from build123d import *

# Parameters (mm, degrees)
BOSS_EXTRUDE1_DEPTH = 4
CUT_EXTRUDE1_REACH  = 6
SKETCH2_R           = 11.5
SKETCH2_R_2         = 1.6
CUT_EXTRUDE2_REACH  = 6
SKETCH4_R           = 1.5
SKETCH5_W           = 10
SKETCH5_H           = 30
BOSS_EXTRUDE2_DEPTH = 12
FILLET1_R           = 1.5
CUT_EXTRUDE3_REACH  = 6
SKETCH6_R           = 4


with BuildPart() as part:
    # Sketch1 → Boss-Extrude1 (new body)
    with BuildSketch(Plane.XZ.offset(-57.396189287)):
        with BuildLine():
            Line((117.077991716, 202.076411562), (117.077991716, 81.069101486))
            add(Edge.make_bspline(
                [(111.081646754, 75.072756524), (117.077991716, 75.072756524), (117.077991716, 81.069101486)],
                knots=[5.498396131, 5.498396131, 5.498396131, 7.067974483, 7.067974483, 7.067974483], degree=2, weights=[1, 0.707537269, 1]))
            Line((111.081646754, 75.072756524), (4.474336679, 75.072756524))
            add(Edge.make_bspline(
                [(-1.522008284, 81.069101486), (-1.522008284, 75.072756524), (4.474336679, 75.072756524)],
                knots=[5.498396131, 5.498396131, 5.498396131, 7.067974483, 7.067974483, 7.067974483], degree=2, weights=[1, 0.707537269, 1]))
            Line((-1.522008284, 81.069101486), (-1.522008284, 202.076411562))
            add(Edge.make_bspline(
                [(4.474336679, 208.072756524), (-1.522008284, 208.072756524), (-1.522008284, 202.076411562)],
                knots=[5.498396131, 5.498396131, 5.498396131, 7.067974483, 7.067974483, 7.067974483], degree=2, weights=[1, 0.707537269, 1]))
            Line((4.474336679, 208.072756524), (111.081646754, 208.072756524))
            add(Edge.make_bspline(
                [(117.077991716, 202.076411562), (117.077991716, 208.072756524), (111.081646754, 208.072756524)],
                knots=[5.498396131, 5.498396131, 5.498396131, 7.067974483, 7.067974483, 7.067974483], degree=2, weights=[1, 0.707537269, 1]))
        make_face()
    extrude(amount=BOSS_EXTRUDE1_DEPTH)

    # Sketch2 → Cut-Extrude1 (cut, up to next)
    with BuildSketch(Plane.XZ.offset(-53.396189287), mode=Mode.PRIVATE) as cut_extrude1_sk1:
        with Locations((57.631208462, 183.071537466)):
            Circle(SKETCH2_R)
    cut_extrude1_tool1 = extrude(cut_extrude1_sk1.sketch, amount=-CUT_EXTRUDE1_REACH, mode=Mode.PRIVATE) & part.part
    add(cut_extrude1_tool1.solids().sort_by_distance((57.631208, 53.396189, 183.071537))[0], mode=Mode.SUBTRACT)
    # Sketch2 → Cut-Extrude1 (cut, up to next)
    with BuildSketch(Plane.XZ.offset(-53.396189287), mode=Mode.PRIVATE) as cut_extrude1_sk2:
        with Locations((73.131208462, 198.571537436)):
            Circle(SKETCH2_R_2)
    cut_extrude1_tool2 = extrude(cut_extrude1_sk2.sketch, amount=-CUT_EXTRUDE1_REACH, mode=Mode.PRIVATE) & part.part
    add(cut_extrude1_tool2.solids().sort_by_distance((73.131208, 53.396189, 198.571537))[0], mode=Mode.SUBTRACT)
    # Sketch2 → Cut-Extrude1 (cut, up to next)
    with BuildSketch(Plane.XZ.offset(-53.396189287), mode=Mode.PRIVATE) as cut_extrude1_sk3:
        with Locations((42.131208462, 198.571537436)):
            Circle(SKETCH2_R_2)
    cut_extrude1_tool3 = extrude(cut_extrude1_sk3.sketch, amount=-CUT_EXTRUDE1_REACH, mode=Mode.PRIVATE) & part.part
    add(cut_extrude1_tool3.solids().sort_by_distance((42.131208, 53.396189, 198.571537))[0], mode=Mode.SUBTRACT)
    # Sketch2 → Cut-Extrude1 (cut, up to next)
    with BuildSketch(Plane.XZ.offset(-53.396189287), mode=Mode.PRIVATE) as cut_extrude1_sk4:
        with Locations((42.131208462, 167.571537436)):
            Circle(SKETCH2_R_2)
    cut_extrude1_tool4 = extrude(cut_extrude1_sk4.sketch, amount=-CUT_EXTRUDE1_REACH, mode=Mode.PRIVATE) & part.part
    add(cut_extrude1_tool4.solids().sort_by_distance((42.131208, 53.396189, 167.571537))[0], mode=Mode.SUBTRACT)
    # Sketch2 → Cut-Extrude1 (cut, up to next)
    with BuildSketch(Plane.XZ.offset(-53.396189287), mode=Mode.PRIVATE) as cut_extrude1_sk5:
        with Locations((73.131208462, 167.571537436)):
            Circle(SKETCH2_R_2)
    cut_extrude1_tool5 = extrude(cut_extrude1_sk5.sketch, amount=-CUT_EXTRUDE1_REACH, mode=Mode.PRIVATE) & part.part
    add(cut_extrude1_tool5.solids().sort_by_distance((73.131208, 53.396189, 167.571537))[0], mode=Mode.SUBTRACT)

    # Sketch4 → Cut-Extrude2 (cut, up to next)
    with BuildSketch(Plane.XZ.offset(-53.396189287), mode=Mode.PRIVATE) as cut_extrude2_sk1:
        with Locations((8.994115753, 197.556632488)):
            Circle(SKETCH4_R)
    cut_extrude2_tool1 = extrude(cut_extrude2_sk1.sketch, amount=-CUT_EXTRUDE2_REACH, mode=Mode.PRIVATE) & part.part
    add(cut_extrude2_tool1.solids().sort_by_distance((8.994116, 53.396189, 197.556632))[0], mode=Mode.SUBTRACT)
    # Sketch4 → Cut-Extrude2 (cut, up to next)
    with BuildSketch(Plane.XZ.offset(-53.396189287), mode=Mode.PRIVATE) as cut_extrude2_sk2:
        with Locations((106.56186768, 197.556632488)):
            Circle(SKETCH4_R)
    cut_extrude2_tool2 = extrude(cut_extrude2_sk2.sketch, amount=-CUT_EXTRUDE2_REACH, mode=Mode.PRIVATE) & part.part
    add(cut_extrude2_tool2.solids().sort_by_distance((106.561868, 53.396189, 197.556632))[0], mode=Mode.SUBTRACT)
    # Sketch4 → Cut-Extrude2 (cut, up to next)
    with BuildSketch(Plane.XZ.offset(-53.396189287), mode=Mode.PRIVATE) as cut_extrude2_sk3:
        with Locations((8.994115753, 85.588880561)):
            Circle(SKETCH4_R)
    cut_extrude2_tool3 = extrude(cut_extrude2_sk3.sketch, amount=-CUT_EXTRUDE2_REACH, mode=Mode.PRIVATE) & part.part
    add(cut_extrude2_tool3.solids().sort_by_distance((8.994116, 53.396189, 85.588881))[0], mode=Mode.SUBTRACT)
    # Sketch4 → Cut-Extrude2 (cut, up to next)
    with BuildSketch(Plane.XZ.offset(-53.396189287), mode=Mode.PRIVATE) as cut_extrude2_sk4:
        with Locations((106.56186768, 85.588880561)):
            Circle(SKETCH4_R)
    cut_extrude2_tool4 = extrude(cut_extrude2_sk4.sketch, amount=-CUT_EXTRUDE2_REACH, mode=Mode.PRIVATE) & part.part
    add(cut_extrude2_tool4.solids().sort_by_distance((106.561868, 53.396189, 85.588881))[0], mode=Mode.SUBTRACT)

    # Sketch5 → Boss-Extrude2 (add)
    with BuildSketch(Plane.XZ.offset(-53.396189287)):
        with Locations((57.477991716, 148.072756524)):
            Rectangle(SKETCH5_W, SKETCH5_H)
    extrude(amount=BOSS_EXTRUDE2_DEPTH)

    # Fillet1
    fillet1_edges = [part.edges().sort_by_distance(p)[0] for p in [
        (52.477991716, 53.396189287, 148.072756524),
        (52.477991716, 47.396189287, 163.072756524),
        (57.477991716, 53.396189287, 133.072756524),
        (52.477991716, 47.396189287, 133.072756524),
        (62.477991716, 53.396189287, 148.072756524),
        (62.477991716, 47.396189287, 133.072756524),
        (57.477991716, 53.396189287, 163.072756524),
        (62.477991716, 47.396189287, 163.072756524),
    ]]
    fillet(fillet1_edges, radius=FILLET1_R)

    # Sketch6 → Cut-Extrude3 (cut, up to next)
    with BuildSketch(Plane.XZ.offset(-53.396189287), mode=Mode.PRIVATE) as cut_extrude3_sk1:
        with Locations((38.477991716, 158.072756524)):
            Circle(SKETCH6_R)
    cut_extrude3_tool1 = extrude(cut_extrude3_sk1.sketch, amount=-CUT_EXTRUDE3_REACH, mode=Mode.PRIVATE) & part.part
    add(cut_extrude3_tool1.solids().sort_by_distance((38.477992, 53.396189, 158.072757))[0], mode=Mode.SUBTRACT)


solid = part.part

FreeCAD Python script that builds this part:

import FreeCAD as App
import Part
import Sketcher
from FreeCAD import Vector
Q = App.Units.Quantity


def edges_at(feature, points):
    """Names of the edges that pass closest to the given points."""
    edges = feature.Shape.Edges
    near = lambda p: min(range(len(edges)), key=lambda i: edges[i].distToShape(Part.Vertex(*p))[0])
    return sorted({f"Edge{near(p) + 1}" for p in points})

doc = App.newDocument("Part")
params = doc.addObject("Spreadsheet::Sheet", "Params")
for row, (alias, value) in enumerate([
    ("pad1_length", "4 mm"),
    ("sketch2_diameter", "23 mm"),
    ("sketch3_diameter", "3.2 mm"),
    ("sketch4_diameter", "3.2 mm"),
    ("sketch5_diameter", "3.2 mm"),
    ("sketch6_diameter", "3.2 mm"),
    ("sketch7_diameter", "3 mm"),
    ("sketch8_diameter", "3 mm"),
    ("sketch9_diameter", "3 mm"),
    ("sketch10_diameter", "3 mm"),
    ("sketch11_width", "10 mm"),
    ("sketch11_height", "30 mm"),
    ("pad2_length", "12 mm"),
    ("fillet_radius", "1.5 mm"),
    ("sketch12_diameter", "8 mm"),
], start=1):
    params.set(f"A{row}", alias)
    params.set(f"B{row}", "=" + value)
    params.setAlias(f"B{row}", alias)

body = doc.addObject("PartDesign::Body", "Body")

# Sketch on XZ plane
sketch1 = body.newObject("Sketcher::SketchObject", "Sketch")
sketch1.AttachmentSupport = (doc.getObject("XZ_Plane"), [""])
sketch1.MapMode = "FlatFace"
sketch1.AttachmentOffset = App.Placement(Vector(0, 0, -57.396189), App.Rotation())
sketch1.addGeometry([
    Part.LineSegment(Vector(117.077992, 81.069101, 0), Vector(117.077992, 202.076412, 0)),  # 0
    Part.BSplineCurve([Vector(117.077992, 202.076412, 0), Vector(117.077992, 208.072757, 0), Vector(111.081647, 208.072757, 0)], [3, 3], [5.498396131, 7.067974483], False, 2, [1, 0.707537269, 1], False),  # 1
    Part.LineSegment(Vector(111.081647, 208.072757, 0), Vector(4.474337, 208.072757, 0)),  # 2
    Part.BSplineCurve([Vector(4.474337, 208.072757, 0), Vector(-1.522008, 208.072757, 0), Vector(-1.522008, 202.076412, 0)], [3, 3], [5.498396131, 7.067974483], False, 2, [1, 0.707537269, 1], False),  # 3
    Part.LineSegment(Vector(-1.522008, 202.076412, 0), Vector(-1.522008, 81.069101, 0)),  # 4
    Part.BSplineCurve([Vector(-1.522008, 81.069101, 0), Vector(-1.522008, 75.072757, 0), Vector(4.474337, 75.072757, 0)], [3, 3], [5.498396131, 7.067974483], False, 2, [1, 0.707537269, 1], False),  # 5
    Part.LineSegment(Vector(4.474337, 75.072757, 0), Vector(111.081647, 75.072757, 0)),  # 6
    Part.BSplineCurve([Vector(111.081647, 75.072757, 0), Vector(117.077992, 75.072757, 0), Vector(117.077992, 81.069101, 0)], [3, 3], [5.498396131, 7.067974483], False, 2, [1, 0.707537269, 1], False),  # 7
], False)
sketch1.addConstraint([
    Sketcher.Constraint("Block", 1),
    Sketcher.Constraint("Block", 3),
    Sketcher.Constraint("Block", 5),
    Sketcher.Constraint("Block", 7),
    Sketcher.Constraint("Coincident", 0, 2, 1, 1),
    Sketcher.Constraint("Coincident", 1, 2, 2, 1),
    Sketcher.Constraint("Coincident", 2, 2, 3, 1),
    Sketcher.Constraint("Coincident", 3, 2, 4, 1),
    Sketcher.Constraint("Coincident", 4, 2, 5, 1),
    Sketcher.Constraint("Coincident", 5, 2, 6, 1),
    Sketcher.Constraint("Coincident", 6, 2, 7, 1),
    Sketcher.Constraint("Coincident", 7, 2, 0, 1),
])
pad1 = body.newObject("PartDesign::Pad", "Pad")
pad1.Profile = sketch1
pad1.setExpression("Length", "Params.pad1_length")

# Sketch on XZ plane
sketch2 = body.newObject("Sketcher::SketchObject", "Sketch001")
sketch2.AttachmentSupport = (doc.getObject("XZ_Plane"), [""])
sketch2.MapMode = "FlatFace"
sketch2.AttachmentOffset = App.Placement(Vector(0, 0, -53.396189), App.Rotation())
sketch2.addGeometry(Part.Circle(Vector(58, 183, 0), Vector(0, 0, 1), 12), False)
sketch2.addConstraint([
    Sketcher.Constraint("Diameter", 0, Q("23 mm")),
    Sketcher.Constraint("DistanceX", -1, 1, 0, 3, Q("57.631208 mm")),
    Sketcher.Constraint("DistanceY", -1, 1, 0, 3, Q("183.071537 mm")),
])
sketch2.setExpression("Constraints[0]", "Params.sketch2_diameter")
pocket1 = body.newObject("PartDesign::Pocket", "Pocket")
pocket1.Profile = sketch2
pocket1.Type = "UpToFirst"

# Sketch on XZ plane
sketch3 = body.newObject("Sketcher::SketchObject", "Sketch002")
sketch3.AttachmentSupport = (doc.getObject("XZ_Plane"), [""])
sketch3.MapMode = "FlatFace"
sketch3.AttachmentOffset = App.Placement(Vector(0, 0, -53.396189), App.Rotation())
sketch3.addGeometry(Part.Circle(Vector(73.1, 198.6, 0), Vector(0, 0, 1), 1.6), False)
sketch3.addConstraint([
    Sketcher.Constraint("Diameter", 0, Q("3.2 mm")),
    Sketcher.Constraint("DistanceX", -1, 1, 0, 3, Q("73.131208 mm")),
    Sketcher.Constraint("DistanceY", -1, 1, 0, 3, Q("198.571537 mm")),
])
sketch3.setExpression("Constraints[0]", "Params.sketch3_diameter")
pocket2 = body.newObject("PartDesign::Pocket", "Pocket001")
pocket2.Profile = sketch3
pocket2.Type = "UpToFirst"

# Sketch on XZ plane
sketch4 = body.newObject("Sketcher::SketchObject", "Sketch003")
sketch4.AttachmentSupport = (doc.getObject("XZ_Plane"), [""])
sketch4.MapMode = "FlatFace"
sketch4.AttachmentOffset = App.Placement(Vector(0, 0, -53.396189), App.Rotation())
sketch4.addGeometry(Part.Circle(Vector(42.1, 198.6, 0), Vector(0, 0, 1), 1.6), False)
sketch4.addConstraint([
    Sketcher.Constraint("Diameter", 0, Q("3.2 mm")),
    Sketcher.Constraint("DistanceX", -1, 1, 0, 3, Q("42.131208 mm")),
    Sketcher.Constraint("DistanceY", -1, 1, 0, 3, Q("198.571537 mm")),
])
sketch4.setExpression("Constraints[0]", "Params.sketch4_diameter")
pocket3 = body.newObject("PartDesign::Pocket", "Pocket002")
pocket3.Profile = sketch4
pocket3.Type = "UpToFirst"

# Sketch on XZ plane
sketch5 = body.newObject("Sketcher::SketchObject", "Sketch004")
sketch5.AttachmentSupport = (doc.getObject("XZ_Plane"), [""])
sketch5.MapMode = "FlatFace"
sketch5.AttachmentOffset = App.Placement(Vector(0, 0, -53.396189), App.Rotation())
sketch5.addGeometry(Part.Circle(Vector(42.1, 167.6, 0), Vector(0, 0, 1), 1.6), False)
sketch5.addConstraint([
    Sketcher.Constraint("Diameter", 0, Q("3.2 mm")),
    Sketcher.Constraint("DistanceX", -1, 1, 0, 3, Q("42.131208 mm")),
    Sketcher.Constraint("DistanceY", -1, 1, 0, 3, Q("167.571537 mm")),
])
sketch5.setExpression("Constraints[0]", "Params.sketch5_diameter")
pocket4 = body.newObject("PartDesign::Pocket", "Pocket003")
pocket4.Profile = sketch5
pocket4.Type = "UpToFirst"

# Sketch on XZ plane
sketch6 = body.newObject("Sketcher::SketchObject", "Sketch005")
sketch6.AttachmentSupport = (doc.getObject("XZ_Plane"), [""])
sketch6.MapMode = "FlatFace"
sketch6.AttachmentOffset = App.Placement(Vector(0, 0, -53.396189), App.Rotation())
sketch6.addGeometry(Part.Circle(Vector(73.1, 167.6, 0), Vector(0, 0, 1), 1.6), False)
sketch6.addConstraint([
    Sketcher.Constraint("Diameter", 0, Q("3.2 mm")),
    Sketcher.Constraint("DistanceX", -1, 1, 0, 3, Q("73.131208 mm")),
    Sketcher.Constraint("DistanceY", -1, 1, 0, 3, Q("167.571537 mm")),
])
sketch6.setExpression("Constraints[0]", "Params.sketch6_diameter")
pocket5 = body.newObject("PartDesign::Pocket", "Pocket004")
pocket5.Profile = sketch6
pocket5.Type = "UpToFirst"

# Sketch on XZ plane
sketch7 = body.newObject("Sketcher::SketchObject", "Sketch006")
sketch7.AttachmentSupport = (doc.getObject("XZ_Plane"), [""])
sketch7.MapMode = "FlatFace"
sketch7.AttachmentOffset = App.Placement(Vector(0, 0, -53.396189), App.Rotation())
sketch7.addGeometry(Part.Circle(Vector(9, 197.6, 0), Vector(0, 0, 1), 1.5), False)
sketch7.addConstraint([
    Sketcher.Constraint("Diameter", 0, Q("3 mm")),
    Sketcher.Constraint("DistanceX", -1, 1, 0, 3, Q("8.994116 mm")),
    Sketcher.Constraint("DistanceY", -1, 1, 0, 3, Q("197.556632 mm")),
])
sketch7.setExpression("Constraints[0]", "Params.sketch7_diameter")
pocket6 = body.newObject("PartDesign::Pocket", "Pocket005")
pocket6.Profile = sketch7
pocket6.Type = "UpToFirst"

# Sketch on XZ plane
sketch8 = body.newObject("Sketcher::SketchObject", "Sketch007")
sketch8.AttachmentSupport = (doc.getObject("XZ_Plane"), [""])
sketch8.MapMode = "FlatFace"
sketch8.AttachmentOffset = App.Placement(Vector(0, 0, -53.396189), App.Rotation())
sketch8.addGeometry(Part.Circle(Vector(106.6, 197.6, 0), Vector(0, 0, 1), 1.5), False)
sketch8.addConstraint([
    Sketcher.Constraint("Diameter", 0, Q("3 mm")),
    Sketcher.Constraint("DistanceX", -1, 1, 0, 3, Q("106.561868 mm")),
    Sketcher.Constraint("DistanceY", -1, 1, 0, 3, Q("197.556632 mm")),
])
sketch8.setExpression("Constraints[0]", "Params.sketch8_diameter")
pocket7 = body.newObject("PartDesign::Pocket", "Pocket006")
pocket7.Profile = sketch8
pocket7.Type = "UpToFirst"

# Sketch on XZ plane
sketch9 = body.newObject("Sketcher::SketchObject", "Sketch008")
sketch9.AttachmentSupport = (doc.getObject("XZ_Plane"), [""])
sketch9.MapMode = "FlatFace"
sketch9.AttachmentOffset = App.Placement(Vector(0, 0, -53.396189), App.Rotation())
sketch9.addGeometry(Part.Circle(Vector(9, 85.6, 0), Vector(0, 0, 1), 1.5), False)
sketch9.addConstraint([
    Sketcher.Constraint("Diameter", 0, Q("3 mm")),
    Sketcher.Constraint("DistanceY", -1, 1, 0, 3, Q("85.588881 mm")),
    Sketcher.Constraint("DistanceX", -1, 1, 0, 3, Q("8.994116 mm")),
])
sketch9.setExpression("Constraints[0]", "Params.sketch9_diameter")
pocket8 = body.newObject("PartDesign::Pocket", "Pocket007")
pocket8.Profile = sketch9
pocket8.Type = "UpToFirst"

# Sketch on XZ plane
sketch10 = body.newObject("Sketcher::SketchObject", "Sketch009")
sketch10.AttachmentSupport = (doc.getObject("XZ_Plane"), [""])
sketch10.MapMode = "FlatFace"
sketch10.AttachmentOffset = App.Placement(Vector(0, 0, -53.396189), App.Rotation())
sketch10.addGeometry(Part.Circle(Vector(106.6, 85.6, 0), Vector(0, 0, 1), 1.5), False)
sketch10.addConstraint([
    Sketcher.Constraint("Diameter", 0, Q("3 mm")),
    Sketcher.Constraint("DistanceY", -1, 1, 0, 3, Q("85.588881 mm")),
    Sketcher.Constraint("DistanceX", -1, 1, 0, 3, Q("106.561868 mm")),
])
sketch10.setExpression("Constraints[0]", "Params.sketch10_diameter")
pocket9 = body.newObject("PartDesign::Pocket", "Pocket008")
pocket9.Profile = sketch10
pocket9.Type = "UpToFirst"

# Sketch on XZ plane
sketch11 = body.newObject("Sketcher::SketchObject", "Sketch010")
sketch11.AttachmentSupport = (doc.getObject("XZ_Plane"), [""])
sketch11.MapMode = "FlatFace"
sketch11.AttachmentOffset = App.Placement(Vector(0, 0, -53.396189), App.Rotation())
sketch11.addGeometry([
    Part.LineSegment(Vector(52, 163, 0), Vector(52, 133, 0)),
    Part.LineSegment(Vector(52, 133, 0), Vector(62, 133, 0)),
    Part.LineSegment(Vector(62, 133, 0), Vector(62, 163, 0)),
    Part.LineSegment(Vector(62, 163, 0), Vector(52, 163, 0)),
], False)
sketch11.addConstraint([
    Sketcher.Constraint("Coincident", 0, 2, 1, 1),
    Sketcher.Constraint("Coincident", 1, 2, 2, 1),
    Sketcher.Constraint("Coincident", 2, 2, 3, 1),
    Sketcher.Constraint("Coincident", 3, 2, 0, 1),
    Sketcher.Constraint("Vertical", 0),
    Sketcher.Constraint("Horizontal", 1),
    Sketcher.Constraint("Vertical", 2),
    Sketcher.Constraint("Horizontal", 3),
    Sketcher.Constraint("DistanceX", 1, 1, 1, 2, Q("10 mm")),
    Sketcher.Constraint("DistanceY", 0, 2, 0, 1, Q("30 mm")),
    Sketcher.Constraint("DistanceX", -1, 1, 0, 2, Q("52.477992 mm")),
    Sketcher.Constraint("DistanceY", -1, 1, 0, 2, Q("133.072757 mm")),
])
sketch11.setExpression("Constraints[8]", "Params.sketch11_width")
sketch11.setExpression("Constraints[9]", "Params.sketch11_height")
pad2 = body.newObject("PartDesign::Pad", "Pad001")
pad2.Profile = sketch11
pad2.setExpression("Length", "Params.pad2_length")
doc.recompute()

fillet = body.newObject("PartDesign::Fillet", "Fillet")
fillet.Base = (pad2, edges_at(pad2, [
    (52.478, 53.396, 148.073),
    (52.478, 47.396, 163.073),
    (57.478, 53.396, 133.073),
    (52.478, 47.396, 133.073),
    (62.478, 53.396, 148.073),
    (62.478, 47.396, 133.073),
    (57.478, 53.396, 163.073),
    (62.478, 47.396, 163.073),
]))
fillet.setExpression("Radius", "Params.fillet_radius")

# Sketch on XZ plane
sketch12 = body.newObject("Sketcher::SketchObject", "Sketch011")
sketch12.AttachmentSupport = (doc.getObject("XZ_Plane"), [""])
sketch12.MapMode = "FlatFace"
sketch12.AttachmentOffset = App.Placement(Vector(0, 0, -53.396189), App.Rotation())
sketch12.addGeometry(Part.Circle(Vector(38.5, 158.1, 0), Vector(0, 0, 1), 4), False)
sketch12.addConstraint([
    Sketcher.Constraint("Diameter", 0, Q("8 mm")),
    Sketcher.Constraint("DistanceX", -1, 1, 0, 3, Q("38.477992 mm")),
    Sketcher.Constraint("DistanceY", -1, 1, 0, 3, Q("158.072757 mm")),
])
sketch12.setExpression("Constraints[0]", "Params.sketch12_diameter")
pocket10 = body.newObject("PartDesign::Pocket", "Pocket009")
pocket10.Profile = sketch12
pocket10.Type = "UpToFirst"

doc.recompute()
